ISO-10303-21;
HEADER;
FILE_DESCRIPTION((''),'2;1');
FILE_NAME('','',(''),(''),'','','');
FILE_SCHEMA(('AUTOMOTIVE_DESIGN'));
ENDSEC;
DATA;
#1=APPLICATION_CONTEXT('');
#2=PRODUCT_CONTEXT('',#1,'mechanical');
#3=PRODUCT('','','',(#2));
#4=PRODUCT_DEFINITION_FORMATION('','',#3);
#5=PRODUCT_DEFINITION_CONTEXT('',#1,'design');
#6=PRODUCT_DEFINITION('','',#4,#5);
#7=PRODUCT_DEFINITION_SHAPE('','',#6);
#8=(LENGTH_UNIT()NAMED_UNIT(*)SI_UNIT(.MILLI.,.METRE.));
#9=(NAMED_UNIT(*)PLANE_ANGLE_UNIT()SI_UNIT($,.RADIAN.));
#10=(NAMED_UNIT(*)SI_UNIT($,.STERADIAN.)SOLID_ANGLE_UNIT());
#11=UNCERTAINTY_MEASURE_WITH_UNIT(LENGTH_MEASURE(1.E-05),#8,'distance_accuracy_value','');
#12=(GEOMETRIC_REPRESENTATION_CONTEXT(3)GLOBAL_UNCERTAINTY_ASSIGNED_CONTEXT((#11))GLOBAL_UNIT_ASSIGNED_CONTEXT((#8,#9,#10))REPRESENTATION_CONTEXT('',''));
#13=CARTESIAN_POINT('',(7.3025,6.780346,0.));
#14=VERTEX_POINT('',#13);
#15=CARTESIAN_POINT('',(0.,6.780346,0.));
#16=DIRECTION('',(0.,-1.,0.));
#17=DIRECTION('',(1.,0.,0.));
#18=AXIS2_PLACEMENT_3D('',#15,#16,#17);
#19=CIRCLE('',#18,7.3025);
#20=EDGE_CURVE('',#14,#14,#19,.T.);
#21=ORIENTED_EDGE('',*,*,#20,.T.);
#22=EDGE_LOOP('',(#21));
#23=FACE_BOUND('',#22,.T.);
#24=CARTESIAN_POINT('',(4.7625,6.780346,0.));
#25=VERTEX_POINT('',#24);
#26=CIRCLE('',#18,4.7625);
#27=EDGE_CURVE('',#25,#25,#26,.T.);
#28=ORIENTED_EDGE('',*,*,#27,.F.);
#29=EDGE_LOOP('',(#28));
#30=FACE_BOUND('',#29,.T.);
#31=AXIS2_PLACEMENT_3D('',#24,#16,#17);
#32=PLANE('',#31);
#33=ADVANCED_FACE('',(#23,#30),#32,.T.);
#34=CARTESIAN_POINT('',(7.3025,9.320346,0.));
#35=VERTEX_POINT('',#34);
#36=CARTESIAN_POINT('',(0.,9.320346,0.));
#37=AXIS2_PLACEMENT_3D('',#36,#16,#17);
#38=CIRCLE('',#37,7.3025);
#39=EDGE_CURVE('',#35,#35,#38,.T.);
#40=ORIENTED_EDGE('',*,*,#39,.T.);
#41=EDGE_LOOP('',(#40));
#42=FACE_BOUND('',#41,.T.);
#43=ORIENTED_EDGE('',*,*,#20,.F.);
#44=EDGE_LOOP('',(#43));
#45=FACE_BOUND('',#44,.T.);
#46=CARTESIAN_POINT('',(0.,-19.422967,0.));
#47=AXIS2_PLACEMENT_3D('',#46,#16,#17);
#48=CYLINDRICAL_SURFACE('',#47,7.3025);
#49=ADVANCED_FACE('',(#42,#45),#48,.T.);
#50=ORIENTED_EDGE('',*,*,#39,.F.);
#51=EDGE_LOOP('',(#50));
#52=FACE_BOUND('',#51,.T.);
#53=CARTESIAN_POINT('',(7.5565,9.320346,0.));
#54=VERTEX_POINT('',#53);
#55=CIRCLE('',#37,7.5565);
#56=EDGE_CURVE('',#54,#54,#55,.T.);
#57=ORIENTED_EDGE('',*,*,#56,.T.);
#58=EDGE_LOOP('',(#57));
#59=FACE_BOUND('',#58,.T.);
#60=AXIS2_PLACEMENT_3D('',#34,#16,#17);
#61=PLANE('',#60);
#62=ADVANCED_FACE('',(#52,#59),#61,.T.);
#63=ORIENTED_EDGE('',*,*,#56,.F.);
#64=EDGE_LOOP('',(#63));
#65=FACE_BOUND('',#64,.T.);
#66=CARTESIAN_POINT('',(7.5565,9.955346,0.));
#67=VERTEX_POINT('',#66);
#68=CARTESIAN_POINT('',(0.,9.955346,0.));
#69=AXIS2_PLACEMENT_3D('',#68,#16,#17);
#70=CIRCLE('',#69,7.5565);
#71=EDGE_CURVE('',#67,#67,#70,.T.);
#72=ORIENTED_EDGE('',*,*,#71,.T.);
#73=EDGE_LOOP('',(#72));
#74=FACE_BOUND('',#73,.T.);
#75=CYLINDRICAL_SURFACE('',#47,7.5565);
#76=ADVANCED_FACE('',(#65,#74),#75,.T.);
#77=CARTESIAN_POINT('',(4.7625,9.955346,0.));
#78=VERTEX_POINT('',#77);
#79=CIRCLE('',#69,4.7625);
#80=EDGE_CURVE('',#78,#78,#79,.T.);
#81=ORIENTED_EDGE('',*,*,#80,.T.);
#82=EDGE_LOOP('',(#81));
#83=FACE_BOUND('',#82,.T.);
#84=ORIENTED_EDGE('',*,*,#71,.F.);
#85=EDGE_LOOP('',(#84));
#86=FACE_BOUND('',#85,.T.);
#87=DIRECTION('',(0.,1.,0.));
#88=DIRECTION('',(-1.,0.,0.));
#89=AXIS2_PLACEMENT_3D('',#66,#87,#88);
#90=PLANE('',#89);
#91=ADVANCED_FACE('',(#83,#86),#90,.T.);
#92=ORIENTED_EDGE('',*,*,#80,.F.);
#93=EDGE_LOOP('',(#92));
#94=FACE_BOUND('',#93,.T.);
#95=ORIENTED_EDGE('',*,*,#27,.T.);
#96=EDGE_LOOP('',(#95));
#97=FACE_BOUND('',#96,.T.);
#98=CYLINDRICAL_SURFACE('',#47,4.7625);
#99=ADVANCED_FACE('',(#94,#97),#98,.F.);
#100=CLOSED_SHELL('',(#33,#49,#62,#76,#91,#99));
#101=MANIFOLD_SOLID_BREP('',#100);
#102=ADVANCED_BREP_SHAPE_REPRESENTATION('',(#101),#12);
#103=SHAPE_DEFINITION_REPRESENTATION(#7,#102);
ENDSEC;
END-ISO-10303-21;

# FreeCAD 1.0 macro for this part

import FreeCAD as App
import Part
import Sketcher
Q = App.Units.Quantity

doc = App.newDocument("Part")
body = doc.addObject("PartDesign::Body", "Body")

sketch1 = doc.addObject("Sketcher::SketchObject", "Sketch")
body.addObject(sketch1)
sketch1.AttachmentSupport = (doc.XY_Plane, [""])
sketch1.MapMode = "FlatFace"
sketch1.addGeometry([
    Part.LineSegment(App.Vector(4.76, 9.96, 0), App.Vector(4.76, 6.78, 0)),
    Part.LineSegment(App.Vector(4.76, 6.78, 0), App.Vector(7.3, 6.78, 0)),
    Part.LineSegment(App.Vector(7.3, 6.78, 0), App.Vector(7.3, 9.32, 0)),
    Part.LineSegment(App.Vector(7.3, 9.32, 0), App.Vector(7.56, 9.32, 0)),
    Part.LineSegment(App.Vector(7.56, 9.32, 0), App.Vector(7.56, 9.96, 0)),
    Part.LineSegment(App.Vector(7.56, 9.96, 0), App.Vector(4.76, 9.96, 0)),
], False)
sketch1.addConstraint([
    Sketcher.Constraint("Coincident", 0, 2, 1, 1),
    Sketcher.Constraint("Coincident", 1, 2, 2, 1),
    Sketcher.Constraint("Coincident", 2, 2, 3, 1),
    Sketcher.Constraint("Coincident", 3, 2, 4, 1),
    Sketcher.Constraint("Coincident", 4, 2, 5, 1),
    Sketcher.Constraint("Coincident", 5, 2, 0, 1),
    Sketcher.Constraint("Vertical", 0),
    Sketcher.Constraint("Horizontal", 1),
    Sketcher.Constraint("Vertical", 2),
    Sketcher.Constraint("Horizontal", 3),
    Sketcher.Constraint("Vertical", 4),
    Sketcher.Constraint("Horizontal", 5),
    Sketcher.Constraint("Equal", 1, 2),
    Sketcher.Constraint("DistanceX", 1, 1, 1, 2, Q("0.1 in")),
    Sketcher.Constraint("DistanceX", 3, 1, 3, 2, Q("0.01 in")),
    Sketcher.Constraint("DistanceY", 0, 2, 0, 1, Q("0.125 in")),
    Sketcher.Constraint("DistanceX", -1, 1, 0, 2, Q("0.1875 in")),
    Sketcher.Constraint("DistanceY", -1, 1, 0, 2, 6.780346),
])
revolution = doc.addObject("PartDesign::Revolution", "Revolution")
body.addObject(revolution)
revolution.Profile = sketch1
revolution.ReferenceAxis = (sketch1, ["V_Axis"])
revolution.Angle = 360

doc.recompute()
